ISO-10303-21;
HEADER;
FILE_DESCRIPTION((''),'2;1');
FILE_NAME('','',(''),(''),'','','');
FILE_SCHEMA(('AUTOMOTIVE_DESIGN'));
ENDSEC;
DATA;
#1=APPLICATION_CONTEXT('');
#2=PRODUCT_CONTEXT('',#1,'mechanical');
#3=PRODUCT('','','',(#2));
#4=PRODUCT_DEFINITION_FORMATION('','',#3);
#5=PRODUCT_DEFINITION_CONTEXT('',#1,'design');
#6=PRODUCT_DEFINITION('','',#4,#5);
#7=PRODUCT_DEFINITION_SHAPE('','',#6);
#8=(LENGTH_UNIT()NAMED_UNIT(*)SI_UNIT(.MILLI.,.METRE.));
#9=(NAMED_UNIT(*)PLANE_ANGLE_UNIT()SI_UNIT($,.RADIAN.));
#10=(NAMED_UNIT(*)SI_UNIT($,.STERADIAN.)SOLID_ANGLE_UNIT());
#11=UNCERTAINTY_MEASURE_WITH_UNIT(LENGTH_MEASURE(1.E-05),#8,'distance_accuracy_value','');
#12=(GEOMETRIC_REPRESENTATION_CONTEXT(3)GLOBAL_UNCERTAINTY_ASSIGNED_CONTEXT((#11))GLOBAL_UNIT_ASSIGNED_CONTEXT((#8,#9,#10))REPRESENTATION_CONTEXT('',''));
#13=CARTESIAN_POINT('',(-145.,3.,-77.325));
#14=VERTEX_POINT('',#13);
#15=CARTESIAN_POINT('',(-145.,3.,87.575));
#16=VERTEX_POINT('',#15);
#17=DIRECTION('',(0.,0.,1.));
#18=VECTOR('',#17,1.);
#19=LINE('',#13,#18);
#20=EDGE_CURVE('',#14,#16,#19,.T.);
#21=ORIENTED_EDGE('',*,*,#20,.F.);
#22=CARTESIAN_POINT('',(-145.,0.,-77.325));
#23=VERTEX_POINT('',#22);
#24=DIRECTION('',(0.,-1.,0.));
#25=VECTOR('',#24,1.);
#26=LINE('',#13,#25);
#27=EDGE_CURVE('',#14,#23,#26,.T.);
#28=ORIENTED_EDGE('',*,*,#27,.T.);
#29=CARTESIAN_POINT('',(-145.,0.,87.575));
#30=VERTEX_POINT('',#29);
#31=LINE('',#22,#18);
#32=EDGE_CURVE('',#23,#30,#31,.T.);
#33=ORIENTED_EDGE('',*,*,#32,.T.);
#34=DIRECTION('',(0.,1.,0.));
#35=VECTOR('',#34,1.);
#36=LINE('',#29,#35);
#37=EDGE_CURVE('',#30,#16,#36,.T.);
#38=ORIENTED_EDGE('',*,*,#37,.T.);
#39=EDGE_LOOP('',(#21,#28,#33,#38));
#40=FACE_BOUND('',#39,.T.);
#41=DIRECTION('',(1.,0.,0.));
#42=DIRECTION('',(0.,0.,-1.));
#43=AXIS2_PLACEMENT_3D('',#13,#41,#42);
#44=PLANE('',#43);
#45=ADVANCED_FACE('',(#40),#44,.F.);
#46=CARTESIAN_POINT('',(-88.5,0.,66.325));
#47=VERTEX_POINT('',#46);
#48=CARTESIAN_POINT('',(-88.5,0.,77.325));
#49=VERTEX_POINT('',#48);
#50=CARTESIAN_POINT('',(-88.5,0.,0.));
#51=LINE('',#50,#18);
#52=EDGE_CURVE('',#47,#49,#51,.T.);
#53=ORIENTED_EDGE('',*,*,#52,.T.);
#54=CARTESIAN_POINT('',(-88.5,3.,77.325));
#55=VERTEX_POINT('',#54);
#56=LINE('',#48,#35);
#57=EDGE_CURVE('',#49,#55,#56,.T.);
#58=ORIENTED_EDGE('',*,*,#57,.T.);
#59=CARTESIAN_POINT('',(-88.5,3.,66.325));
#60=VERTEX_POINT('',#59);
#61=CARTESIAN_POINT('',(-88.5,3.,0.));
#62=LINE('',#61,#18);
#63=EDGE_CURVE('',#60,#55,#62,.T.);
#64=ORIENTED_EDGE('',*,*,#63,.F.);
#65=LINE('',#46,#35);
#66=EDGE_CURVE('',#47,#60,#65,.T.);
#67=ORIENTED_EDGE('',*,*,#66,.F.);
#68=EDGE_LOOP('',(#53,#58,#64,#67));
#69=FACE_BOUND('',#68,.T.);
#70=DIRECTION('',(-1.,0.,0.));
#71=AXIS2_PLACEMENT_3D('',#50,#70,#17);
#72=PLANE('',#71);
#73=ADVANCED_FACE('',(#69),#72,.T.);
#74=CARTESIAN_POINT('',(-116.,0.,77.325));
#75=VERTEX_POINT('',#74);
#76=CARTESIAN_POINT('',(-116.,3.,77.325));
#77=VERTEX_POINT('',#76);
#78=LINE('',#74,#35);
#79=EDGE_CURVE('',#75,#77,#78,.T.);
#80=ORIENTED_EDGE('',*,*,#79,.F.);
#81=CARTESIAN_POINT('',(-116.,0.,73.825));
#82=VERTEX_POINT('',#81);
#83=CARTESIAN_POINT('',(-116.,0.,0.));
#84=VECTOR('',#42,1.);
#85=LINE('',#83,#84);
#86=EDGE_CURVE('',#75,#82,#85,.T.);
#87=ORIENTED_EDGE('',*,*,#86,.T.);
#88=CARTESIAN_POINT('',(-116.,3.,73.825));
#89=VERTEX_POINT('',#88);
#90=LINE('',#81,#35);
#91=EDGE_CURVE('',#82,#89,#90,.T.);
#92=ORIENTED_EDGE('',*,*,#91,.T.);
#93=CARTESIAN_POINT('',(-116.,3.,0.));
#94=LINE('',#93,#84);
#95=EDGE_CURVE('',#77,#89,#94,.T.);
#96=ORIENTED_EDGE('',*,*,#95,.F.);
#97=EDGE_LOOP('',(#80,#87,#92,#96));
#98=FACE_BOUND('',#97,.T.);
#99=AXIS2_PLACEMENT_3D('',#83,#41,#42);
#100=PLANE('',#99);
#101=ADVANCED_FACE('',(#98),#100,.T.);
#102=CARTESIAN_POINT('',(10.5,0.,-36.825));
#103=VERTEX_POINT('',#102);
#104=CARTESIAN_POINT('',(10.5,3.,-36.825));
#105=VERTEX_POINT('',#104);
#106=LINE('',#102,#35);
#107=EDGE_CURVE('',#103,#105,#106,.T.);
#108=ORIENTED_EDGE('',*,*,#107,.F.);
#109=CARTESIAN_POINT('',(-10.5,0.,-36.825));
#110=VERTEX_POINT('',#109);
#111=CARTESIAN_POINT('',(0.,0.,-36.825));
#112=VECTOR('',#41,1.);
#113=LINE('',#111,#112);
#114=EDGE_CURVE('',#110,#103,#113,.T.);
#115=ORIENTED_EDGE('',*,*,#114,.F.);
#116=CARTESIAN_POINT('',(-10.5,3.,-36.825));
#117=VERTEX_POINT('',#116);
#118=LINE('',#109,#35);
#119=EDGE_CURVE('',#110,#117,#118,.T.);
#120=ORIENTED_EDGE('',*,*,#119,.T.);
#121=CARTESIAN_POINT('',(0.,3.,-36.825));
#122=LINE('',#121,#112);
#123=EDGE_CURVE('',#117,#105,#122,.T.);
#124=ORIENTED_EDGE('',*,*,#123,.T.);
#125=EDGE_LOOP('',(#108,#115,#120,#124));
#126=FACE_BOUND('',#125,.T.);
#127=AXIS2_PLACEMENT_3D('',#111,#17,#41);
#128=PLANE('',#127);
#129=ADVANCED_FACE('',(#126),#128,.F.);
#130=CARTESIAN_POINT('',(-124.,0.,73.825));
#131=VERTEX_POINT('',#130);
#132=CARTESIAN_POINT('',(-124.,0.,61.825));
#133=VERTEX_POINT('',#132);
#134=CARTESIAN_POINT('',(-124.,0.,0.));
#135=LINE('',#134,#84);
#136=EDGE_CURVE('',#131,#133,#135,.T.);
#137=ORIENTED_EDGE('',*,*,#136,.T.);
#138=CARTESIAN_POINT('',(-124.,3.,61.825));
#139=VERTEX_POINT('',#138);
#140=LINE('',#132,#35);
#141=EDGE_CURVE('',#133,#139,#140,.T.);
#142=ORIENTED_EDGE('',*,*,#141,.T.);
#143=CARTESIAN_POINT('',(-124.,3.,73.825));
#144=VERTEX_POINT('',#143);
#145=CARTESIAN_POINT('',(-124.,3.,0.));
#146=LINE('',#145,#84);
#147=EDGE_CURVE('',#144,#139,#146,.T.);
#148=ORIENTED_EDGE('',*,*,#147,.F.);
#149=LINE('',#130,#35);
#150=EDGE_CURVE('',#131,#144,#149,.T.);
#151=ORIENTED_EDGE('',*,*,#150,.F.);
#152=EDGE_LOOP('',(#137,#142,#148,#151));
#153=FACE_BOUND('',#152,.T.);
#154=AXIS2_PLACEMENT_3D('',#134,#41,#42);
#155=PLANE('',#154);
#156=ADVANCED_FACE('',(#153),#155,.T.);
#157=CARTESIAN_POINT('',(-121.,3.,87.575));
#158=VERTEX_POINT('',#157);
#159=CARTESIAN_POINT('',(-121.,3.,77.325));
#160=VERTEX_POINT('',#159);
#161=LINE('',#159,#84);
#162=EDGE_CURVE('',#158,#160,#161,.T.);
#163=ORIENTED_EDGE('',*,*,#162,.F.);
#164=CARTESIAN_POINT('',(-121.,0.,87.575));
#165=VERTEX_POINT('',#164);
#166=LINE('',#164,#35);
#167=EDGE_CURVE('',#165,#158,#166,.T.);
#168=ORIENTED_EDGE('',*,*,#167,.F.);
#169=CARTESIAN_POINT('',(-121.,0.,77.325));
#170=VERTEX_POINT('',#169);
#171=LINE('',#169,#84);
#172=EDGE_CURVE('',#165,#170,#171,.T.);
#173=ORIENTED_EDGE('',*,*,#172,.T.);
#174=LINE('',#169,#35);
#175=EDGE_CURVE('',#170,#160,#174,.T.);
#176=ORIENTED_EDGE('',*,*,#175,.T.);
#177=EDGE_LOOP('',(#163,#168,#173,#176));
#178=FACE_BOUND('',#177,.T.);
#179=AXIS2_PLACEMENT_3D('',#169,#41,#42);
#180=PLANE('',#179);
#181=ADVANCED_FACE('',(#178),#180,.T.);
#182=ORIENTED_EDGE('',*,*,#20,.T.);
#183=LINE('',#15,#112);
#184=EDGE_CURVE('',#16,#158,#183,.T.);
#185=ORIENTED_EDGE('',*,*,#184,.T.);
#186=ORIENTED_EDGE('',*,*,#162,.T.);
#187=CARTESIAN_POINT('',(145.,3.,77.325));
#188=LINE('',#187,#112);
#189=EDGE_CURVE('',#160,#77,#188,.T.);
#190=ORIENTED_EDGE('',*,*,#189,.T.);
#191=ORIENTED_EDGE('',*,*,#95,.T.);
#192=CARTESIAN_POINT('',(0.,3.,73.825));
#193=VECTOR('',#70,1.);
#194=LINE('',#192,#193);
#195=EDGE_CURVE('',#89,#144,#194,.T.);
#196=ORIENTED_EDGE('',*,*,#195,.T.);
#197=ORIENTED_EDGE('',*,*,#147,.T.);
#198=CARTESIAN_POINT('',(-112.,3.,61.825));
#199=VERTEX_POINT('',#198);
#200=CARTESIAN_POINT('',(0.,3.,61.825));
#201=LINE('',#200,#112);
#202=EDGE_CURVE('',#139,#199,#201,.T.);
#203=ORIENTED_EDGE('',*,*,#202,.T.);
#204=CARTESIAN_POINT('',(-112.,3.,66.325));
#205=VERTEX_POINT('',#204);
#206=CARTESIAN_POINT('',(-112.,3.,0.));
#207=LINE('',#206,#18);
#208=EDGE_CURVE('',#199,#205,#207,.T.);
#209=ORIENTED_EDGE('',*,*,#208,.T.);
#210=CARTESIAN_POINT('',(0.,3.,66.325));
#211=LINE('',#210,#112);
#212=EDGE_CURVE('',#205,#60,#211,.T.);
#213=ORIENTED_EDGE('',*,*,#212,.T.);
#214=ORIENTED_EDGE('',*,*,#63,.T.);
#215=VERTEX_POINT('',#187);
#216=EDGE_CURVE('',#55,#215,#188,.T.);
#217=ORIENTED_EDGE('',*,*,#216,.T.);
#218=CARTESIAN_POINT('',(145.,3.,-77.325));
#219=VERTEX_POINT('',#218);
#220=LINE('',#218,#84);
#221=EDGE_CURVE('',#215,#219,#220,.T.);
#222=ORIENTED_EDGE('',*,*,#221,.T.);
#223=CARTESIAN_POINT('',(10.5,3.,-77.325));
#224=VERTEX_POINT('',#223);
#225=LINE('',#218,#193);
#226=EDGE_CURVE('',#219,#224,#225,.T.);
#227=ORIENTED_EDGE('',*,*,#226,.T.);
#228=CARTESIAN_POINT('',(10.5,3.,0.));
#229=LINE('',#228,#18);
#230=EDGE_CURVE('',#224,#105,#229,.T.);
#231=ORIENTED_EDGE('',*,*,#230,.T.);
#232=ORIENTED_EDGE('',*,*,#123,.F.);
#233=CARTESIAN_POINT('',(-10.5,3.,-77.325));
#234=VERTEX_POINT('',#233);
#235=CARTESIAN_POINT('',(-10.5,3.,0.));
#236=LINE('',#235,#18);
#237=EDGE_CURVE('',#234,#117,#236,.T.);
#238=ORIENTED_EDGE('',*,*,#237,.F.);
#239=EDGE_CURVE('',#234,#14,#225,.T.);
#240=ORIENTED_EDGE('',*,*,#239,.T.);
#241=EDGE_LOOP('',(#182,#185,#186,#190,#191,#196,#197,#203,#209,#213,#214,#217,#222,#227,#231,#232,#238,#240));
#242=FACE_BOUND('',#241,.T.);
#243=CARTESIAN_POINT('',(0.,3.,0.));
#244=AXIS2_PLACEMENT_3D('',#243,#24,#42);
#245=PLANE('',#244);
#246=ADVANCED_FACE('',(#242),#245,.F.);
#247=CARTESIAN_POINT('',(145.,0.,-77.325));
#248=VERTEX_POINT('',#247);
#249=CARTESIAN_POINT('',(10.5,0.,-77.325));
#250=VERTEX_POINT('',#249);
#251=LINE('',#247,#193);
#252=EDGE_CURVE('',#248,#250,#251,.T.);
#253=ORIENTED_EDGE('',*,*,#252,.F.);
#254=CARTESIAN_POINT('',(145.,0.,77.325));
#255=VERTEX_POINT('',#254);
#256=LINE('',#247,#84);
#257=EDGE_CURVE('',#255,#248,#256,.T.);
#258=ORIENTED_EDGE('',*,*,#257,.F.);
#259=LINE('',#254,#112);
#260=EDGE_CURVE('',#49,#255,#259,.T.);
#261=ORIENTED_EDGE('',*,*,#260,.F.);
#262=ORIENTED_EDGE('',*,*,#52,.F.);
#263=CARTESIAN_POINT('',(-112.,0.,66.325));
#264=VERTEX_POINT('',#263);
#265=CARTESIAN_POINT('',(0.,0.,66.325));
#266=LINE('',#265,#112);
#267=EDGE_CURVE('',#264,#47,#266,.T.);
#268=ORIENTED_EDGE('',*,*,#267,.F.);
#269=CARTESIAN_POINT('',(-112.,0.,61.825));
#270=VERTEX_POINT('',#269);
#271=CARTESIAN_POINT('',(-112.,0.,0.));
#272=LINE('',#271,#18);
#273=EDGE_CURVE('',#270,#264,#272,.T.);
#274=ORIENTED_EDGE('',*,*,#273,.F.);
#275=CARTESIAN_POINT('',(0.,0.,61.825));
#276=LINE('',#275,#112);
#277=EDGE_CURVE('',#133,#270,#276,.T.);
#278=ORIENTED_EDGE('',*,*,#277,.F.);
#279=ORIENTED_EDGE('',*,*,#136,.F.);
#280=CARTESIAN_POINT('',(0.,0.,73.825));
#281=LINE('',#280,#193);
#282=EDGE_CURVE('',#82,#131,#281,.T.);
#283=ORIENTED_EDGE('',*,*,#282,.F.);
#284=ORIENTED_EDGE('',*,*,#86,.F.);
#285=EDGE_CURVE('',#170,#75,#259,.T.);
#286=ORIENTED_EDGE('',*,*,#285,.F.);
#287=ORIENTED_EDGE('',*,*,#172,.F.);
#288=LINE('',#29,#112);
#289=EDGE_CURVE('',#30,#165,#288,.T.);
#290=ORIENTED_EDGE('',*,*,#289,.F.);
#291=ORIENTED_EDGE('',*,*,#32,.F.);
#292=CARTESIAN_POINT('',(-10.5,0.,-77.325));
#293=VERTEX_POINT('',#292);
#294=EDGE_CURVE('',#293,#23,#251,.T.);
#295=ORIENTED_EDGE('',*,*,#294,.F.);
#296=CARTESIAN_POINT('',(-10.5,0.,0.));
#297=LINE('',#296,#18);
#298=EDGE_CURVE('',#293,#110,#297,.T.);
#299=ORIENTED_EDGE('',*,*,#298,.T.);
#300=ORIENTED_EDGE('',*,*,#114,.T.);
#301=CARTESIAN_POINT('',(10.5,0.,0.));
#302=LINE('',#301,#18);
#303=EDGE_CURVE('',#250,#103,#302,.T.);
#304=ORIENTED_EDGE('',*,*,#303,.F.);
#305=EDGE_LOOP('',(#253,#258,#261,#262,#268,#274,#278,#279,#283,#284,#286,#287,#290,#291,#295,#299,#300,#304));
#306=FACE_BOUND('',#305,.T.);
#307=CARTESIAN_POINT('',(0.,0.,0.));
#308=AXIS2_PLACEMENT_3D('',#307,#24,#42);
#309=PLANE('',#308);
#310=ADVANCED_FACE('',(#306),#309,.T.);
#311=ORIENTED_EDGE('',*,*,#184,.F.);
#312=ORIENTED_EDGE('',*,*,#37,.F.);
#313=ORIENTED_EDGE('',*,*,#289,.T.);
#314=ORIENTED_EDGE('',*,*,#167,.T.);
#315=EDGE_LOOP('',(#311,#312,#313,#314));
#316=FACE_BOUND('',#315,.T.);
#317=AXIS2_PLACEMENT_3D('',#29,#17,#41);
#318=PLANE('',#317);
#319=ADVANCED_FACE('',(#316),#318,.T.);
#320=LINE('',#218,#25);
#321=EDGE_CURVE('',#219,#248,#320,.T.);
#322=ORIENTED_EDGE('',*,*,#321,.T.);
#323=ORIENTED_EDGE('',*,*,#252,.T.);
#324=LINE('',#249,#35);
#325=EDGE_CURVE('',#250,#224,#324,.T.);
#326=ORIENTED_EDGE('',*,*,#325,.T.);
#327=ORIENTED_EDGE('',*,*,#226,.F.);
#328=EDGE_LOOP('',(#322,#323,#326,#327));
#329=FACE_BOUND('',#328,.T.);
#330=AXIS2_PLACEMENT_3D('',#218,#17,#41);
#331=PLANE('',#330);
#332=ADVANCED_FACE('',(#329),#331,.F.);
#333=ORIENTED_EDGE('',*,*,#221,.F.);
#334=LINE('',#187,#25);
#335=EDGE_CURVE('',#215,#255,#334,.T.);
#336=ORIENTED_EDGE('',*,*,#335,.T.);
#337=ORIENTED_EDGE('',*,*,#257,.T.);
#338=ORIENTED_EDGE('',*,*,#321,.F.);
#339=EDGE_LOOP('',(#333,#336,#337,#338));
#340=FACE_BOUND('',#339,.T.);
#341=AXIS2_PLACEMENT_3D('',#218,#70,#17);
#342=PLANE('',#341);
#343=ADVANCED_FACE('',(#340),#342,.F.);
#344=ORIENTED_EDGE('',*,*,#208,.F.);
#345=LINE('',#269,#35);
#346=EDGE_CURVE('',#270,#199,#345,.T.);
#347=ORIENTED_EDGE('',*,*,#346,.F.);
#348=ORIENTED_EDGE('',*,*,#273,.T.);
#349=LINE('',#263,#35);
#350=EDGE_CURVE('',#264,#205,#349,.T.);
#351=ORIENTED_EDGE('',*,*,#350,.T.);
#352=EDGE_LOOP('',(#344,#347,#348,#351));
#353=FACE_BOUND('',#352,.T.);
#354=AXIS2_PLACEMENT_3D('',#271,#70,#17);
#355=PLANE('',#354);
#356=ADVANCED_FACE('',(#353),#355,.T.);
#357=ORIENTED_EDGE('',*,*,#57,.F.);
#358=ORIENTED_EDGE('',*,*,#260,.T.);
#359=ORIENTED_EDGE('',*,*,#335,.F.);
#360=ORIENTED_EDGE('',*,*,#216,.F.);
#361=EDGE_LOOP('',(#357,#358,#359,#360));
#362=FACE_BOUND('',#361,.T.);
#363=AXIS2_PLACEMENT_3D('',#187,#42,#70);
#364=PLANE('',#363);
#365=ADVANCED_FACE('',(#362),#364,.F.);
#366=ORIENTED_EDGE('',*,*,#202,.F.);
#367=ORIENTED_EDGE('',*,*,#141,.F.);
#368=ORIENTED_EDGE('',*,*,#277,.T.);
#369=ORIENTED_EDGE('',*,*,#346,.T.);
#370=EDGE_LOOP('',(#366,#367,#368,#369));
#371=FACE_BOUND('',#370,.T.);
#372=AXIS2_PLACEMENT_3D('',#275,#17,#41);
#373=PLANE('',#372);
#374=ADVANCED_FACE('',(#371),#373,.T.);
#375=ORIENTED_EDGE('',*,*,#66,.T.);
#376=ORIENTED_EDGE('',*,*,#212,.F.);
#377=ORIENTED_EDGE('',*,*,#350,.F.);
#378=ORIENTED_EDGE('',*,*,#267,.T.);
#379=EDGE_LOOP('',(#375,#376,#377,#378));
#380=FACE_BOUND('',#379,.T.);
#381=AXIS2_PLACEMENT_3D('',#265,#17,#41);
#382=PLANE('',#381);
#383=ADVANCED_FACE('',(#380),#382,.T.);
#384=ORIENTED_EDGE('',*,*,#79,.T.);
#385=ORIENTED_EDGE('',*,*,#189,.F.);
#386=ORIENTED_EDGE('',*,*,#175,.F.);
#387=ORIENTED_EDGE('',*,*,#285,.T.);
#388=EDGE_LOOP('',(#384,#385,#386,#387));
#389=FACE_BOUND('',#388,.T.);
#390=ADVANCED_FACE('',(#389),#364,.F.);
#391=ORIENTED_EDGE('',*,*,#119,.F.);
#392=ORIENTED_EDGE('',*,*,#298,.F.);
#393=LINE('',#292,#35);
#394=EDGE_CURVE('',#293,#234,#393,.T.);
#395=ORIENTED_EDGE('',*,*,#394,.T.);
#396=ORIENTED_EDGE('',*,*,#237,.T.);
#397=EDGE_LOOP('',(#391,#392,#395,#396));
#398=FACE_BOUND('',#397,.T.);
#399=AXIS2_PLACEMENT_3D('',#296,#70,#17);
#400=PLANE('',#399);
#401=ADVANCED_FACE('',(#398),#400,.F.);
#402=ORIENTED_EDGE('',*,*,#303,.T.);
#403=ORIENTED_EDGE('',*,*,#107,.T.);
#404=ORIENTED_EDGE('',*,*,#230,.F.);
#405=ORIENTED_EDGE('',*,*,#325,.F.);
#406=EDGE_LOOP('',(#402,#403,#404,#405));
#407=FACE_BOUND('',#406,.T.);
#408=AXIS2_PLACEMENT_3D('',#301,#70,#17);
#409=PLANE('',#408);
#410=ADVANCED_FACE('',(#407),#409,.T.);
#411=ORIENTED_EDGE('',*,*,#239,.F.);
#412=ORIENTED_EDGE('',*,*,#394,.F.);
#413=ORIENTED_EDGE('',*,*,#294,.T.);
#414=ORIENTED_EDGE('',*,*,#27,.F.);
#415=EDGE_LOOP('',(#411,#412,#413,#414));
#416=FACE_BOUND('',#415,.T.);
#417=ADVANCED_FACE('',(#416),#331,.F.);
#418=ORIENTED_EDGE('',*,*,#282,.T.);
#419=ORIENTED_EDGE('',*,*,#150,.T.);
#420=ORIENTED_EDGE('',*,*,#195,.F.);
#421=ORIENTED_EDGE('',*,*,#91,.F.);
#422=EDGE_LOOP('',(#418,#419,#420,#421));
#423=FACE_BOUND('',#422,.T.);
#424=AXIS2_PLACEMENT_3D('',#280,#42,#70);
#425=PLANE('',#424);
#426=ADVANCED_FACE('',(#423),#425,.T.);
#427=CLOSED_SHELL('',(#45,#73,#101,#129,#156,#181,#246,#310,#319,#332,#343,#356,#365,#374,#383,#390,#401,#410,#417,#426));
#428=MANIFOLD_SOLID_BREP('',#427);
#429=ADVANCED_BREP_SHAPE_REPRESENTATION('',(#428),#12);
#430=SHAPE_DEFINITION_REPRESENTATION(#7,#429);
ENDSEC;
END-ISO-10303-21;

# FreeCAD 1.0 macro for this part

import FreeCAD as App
import Part
import Sketcher
from FreeCAD import Vector
Q = App.Units.Quantity


def add_polygon(sketch, points):
    """Adds a closed chain of lines whose ends are joined by coincident constraints."""
    first, n = sketch.GeometryCount, len(points)
    for a, b in zip(points, points[1:] + points[:1]):
        sketch.addGeometry(Part.LineSegment(App.Vector(*a, 0), App.Vector(*b, 0)), False)
    for i in range(n):
        sketch.addConstraint(Sketcher.Constraint("Coincident", first + i, 2, first + (i + 1) % n, 1))

doc = App.newDocument("Part")
body = doc.addObject("PartDesign::Body", "Body")

# Sketch on XZ plane
sketch1 = body.newObject("Sketcher::SketchObject", "Sketch")
sketch1.AttachmentSupport = (doc.getObject("XZ_Plane"), [""])
sketch1.MapMode = "FlatFace"
add_polygon(sketch1, [(-145, -77), (-145, 77), (145, 77), (145, -77)])  # lines 0-3
sketch1.addConstraint([
    Sketcher.Constraint("Vertical", 0),
    Sketcher.Constraint("Horizontal", 1),
    Sketcher.Constraint("Vertical", 2),
    Sketcher.Constraint("Horizontal", 3),
    Sketcher.Constraint("Symmetric", 0, 2, 2, 2, -1, 1),
    Sketcher.Constraint("DistanceX", 1, 1, 1, 2, Q("290 mm")),
    Sketcher.Constraint("DistanceY", 0, 1, 0, 2, Q("154.65 mm")),
])
pad1 = body.newObject("PartDesign::Pad", "Pad")
pad1.Profile = sketch1
pad1.Length = 3
pad1.Reversed = True

# Sketch on XZ plane
sketch2 = body.newObject("Sketcher::SketchObject", "Sketch001")
sketch2.AttachmentSupport = (doc.getObject("XZ_Plane"), [""])
sketch2.MapMode = "FlatFace"
sketch2.AttachmentOffset = App.Placement(Vector(0, 0, -3), App.Rotation())
add_polygon(sketch2, [(-10, -77), (-10, -37), (10, -37), (10, -77)])  # lines 0-3
sketch2.addConstraint([
    Sketcher.Constraint("Vertical", 0),
    Sketcher.Constraint("Horizontal", 1),
    Sketcher.Constraint("Vertical", 2),
    Sketcher.Constraint("Horizontal", 3),
    Sketcher.Constraint("DistanceX", 1, 1, 1, 2, Q("21 mm")),
    Sketcher.Constraint("DistanceY", 0, 1, 0, 2, Q("40.5 mm")),
    Sketcher.Constraint("DistanceX", 0, 2, -1, 1, Q("10.5 mm")),
    Sketcher.Constraint("DistanceY", 0, 2, -1, 1, Q("36.825 mm")),
])
pocket1 = body.newObject("PartDesign::Pocket", "Pocket")
pocket1.Profile = sketch2
pocket1.Type = "ThroughAll"
pocket1.Reversed = True

# Sketch on XZ plane
sketch3 = body.newObject("Sketcher::SketchObject", "Sketch002")
sketch3.AttachmentSupport = (doc.getObject("XZ_Plane"), [""])
sketch3.MapMode = "FlatFace"
sketch3.AttachmentOffset = App.Placement(Vector(0, 0, -3), App.Rotation())
add_polygon(sketch3, [(-116, 73.8), (-116, 77.3), (-88.5, 77.3), (-88.5, 66.3), (-112, 66.3), (-112, 61.8), (-124, 61.8), (-124, 73.8)])  # lines 0-7
sketch3.addConstraint([
    Sketcher.Constraint("Vertical", 0),
    Sketcher.Constraint("Horizontal", 1),
    Sketcher.Constraint("Vertical", 2),
    Sketcher.Constraint("Horizontal", 3),
    Sketcher.Constraint("Vertical", 4),
    Sketcher.Constraint("Horizontal", 5),
    Sketcher.Constraint("Vertical", 6),
    Sketcher.Constraint("Horizontal", 7),
    Sketcher.Constraint("Equal", 5, 6),
    Sketcher.Constraint("DistanceX", 5, 2, 5, 1, Q("12 mm")),
    Sketcher.Constraint("DistanceX", 7, 1, 7, 2, Q("8 mm")),
    Sketcher.Constraint("DistanceY", 2, 2, 2, 1, Q("11 mm")),
    Sketcher.Constraint("DistanceX", 1, 1, 1, 2, Q("27.5 mm")),
    Sketcher.Constraint("DistanceY", 0, 1, 0, 2, Q("3.5 mm")),
    Sketcher.Constraint("DistanceX", 0, 2, -1, 1, Q("116 mm")),
    Sketcher.Constraint("DistanceY", -1, 1, 0, 2, Q("77.325 mm")),
])
pocket2 = body.newObject("PartDesign::Pocket", "Pocket001")
pocket2.Profile = sketch3
pocket2.Type = "ThroughAll"
pocket2.Reversed = True

# Sketch on XZ plane
sketch4 = body.newObject("Sketcher::SketchObject", "Sketch003")
sketch4.AttachmentSupport = (doc.getObject("XZ_Plane"), [""])
sketch4.MapMode = "FlatFace"
sketch4.AttachmentOffset = App.Placement(Vector(0, 0, -3), App.Rotation())
add_polygon(sketch4, [(-145, 77), (-145, 88), (-121, 88), (-121, 77)])  # lines 0-3
sketch4.addConstraint([
    Sketcher.Constraint("Vertical", 0),
    Sketcher.Constraint("Horizontal", 1),
    Sketcher.Constraint("Vertical", 2),
    Sketcher.Constraint("Horizontal", 3),
    Sketcher.Constraint("DistanceX", 1, 1, 1, 2, Q("24 mm")),
    Sketcher.Constraint("DistanceX", 0, 2, -1, 1, Q("145 mm")),
    Sketcher.Constraint("DistanceY", 0, 1, 0, 2, Q("10.25 mm")),
    Sketcher.Constraint("DistanceY", -1, 1, 0, 2, Q("87.575 mm")),
])
pad2 = body.newObject("PartDesign::Pad", "Pad001")
pad2.Profile = sketch4
pad2.Length = 3

doc.recompute()
